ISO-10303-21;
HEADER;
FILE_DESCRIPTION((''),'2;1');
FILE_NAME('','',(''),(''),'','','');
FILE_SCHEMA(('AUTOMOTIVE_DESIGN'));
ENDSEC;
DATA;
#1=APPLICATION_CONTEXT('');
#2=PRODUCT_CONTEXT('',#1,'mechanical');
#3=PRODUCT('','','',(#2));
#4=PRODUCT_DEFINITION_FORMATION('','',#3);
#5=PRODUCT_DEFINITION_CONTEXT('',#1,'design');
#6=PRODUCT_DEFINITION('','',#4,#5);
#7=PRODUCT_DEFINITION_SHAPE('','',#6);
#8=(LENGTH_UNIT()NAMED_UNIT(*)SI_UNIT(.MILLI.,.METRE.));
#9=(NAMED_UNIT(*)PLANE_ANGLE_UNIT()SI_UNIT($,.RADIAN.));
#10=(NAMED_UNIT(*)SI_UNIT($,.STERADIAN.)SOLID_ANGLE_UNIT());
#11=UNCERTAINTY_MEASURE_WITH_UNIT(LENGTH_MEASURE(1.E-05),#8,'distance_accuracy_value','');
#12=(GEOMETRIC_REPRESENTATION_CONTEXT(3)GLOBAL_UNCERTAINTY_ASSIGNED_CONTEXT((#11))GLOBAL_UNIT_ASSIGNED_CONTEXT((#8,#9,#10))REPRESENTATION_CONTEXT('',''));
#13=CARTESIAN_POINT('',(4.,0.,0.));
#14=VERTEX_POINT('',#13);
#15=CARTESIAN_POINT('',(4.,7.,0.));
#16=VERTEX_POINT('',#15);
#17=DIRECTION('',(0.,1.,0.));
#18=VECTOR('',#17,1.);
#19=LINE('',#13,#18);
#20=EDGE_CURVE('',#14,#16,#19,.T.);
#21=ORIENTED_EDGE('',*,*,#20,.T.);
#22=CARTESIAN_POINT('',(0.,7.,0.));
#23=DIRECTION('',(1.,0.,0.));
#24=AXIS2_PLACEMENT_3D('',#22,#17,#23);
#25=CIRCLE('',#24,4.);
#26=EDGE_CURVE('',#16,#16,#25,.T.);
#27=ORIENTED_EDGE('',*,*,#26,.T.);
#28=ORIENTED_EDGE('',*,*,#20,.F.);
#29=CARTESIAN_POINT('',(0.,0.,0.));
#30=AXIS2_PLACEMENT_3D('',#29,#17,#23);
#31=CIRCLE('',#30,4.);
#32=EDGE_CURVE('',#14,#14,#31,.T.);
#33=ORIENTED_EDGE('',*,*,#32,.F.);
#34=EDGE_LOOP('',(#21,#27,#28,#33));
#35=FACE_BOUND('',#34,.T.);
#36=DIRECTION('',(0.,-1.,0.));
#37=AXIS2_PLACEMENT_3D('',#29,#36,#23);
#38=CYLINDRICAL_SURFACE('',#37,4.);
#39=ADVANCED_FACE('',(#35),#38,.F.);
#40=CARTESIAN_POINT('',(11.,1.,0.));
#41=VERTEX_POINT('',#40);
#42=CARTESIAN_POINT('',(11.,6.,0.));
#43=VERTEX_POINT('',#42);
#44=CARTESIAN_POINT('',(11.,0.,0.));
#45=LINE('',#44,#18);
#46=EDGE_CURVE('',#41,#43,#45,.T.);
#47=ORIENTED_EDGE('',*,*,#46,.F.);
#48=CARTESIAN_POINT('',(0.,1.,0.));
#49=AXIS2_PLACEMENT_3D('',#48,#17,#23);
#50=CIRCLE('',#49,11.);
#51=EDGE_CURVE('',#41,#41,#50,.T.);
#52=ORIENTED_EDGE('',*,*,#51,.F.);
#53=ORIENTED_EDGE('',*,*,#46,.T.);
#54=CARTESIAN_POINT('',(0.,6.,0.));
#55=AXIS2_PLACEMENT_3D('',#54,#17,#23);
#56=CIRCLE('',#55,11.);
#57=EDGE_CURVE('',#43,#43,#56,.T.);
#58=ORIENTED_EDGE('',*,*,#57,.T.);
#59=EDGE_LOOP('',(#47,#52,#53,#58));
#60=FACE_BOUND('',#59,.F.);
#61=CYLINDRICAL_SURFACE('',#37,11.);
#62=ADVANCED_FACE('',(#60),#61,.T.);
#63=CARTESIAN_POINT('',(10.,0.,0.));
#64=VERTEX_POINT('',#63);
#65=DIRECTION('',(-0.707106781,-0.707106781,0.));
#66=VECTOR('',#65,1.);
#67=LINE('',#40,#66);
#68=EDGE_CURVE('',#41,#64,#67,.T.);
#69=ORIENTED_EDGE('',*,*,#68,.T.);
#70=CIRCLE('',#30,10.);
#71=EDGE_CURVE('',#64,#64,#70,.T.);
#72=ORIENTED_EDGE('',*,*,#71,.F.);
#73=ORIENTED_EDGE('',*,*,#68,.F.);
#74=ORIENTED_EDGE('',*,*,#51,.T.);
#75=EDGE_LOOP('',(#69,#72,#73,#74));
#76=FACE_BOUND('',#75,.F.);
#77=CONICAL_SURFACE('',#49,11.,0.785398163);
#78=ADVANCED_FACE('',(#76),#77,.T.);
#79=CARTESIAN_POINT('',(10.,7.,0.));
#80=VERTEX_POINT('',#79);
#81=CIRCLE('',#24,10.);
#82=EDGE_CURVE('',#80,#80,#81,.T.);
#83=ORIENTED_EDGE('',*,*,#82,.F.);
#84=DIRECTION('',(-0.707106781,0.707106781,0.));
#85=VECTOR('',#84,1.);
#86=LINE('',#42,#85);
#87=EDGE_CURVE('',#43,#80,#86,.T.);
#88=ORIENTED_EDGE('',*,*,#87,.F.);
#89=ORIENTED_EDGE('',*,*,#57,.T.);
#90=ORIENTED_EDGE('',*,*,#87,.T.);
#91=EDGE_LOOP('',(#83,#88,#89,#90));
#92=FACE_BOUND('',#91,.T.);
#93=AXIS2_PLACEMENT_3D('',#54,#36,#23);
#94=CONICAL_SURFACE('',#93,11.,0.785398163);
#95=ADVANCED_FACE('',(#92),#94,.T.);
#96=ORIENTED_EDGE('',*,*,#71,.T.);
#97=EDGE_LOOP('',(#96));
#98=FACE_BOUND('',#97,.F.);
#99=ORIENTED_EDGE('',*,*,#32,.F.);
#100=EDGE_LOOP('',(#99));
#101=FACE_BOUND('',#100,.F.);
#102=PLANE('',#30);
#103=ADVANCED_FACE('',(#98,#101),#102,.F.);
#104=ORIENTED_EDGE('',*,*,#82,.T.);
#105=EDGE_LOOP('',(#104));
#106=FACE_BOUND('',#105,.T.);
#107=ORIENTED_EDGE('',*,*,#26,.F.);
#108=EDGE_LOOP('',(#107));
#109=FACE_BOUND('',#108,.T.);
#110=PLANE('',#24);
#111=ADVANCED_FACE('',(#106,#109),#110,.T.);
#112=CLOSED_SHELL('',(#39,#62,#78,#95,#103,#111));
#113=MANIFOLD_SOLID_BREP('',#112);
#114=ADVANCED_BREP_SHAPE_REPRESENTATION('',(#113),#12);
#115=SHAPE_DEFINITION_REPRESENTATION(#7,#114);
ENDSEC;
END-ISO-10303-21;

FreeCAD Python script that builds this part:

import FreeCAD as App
import Part
import Sketcher
Q = App.Units.Quantity


def edges_at(feature, points):
    """Names of the edges that pass closest to the given points."""
    edges = feature.Shape.Edges
    near = lambda p: min(range(len(edges)), key=lambda i: edges[i].distToShape(Part.Vertex(*p))[0])
    return sorted({f"Edge{near(p) + 1}" for p in points})

doc = App.newDocument("Part")
body = doc.addObject("PartDesign::Body", "Body")

# Sketch on XZ plane
sketch1 = doc.addObject("Sketcher::SketchObject", "Sketch")
body.addObject(sketch1)
sketch1.AttachmentSupport = (doc.XZ_Plane, [""])
sketch1.MapMode = "FlatFace"
sketch1.addGeometry([
    Part.Circle(App.Vector(0, 0, 0), App.Vector(0, 0, 1), 11),
    Part.Circle(App.Vector(0, 0, 0), App.Vector(0, 0, 1), 4),
], False)
sketch1.addConstraint([
    Sketcher.Constraint("Coincident", 0, 3, -1, 1),
    Sketcher.Constraint("Coincident", 1, 3, -1, 1),
    Sketcher.Constraint("Diameter", 0, Q("22 mm")),
    Sketcher.Constraint("Diameter", 1, Q("8 mm")),
])
pad1 = doc.addObject("PartDesign::Pad", "Pad")
body.addObject(pad1)
pad1.Profile = sketch1
pad1.Length = 7
pad1.Reversed = True
doc.recompute()

chamfer = doc.addObject("PartDesign::Chamfer", "Chamfer")
body.addObject(chamfer)
chamfer.Base = (pad1, edges_at(pad1, [(-10.256, 7, 3.978), (-10.256, 0, 3.978)]))
chamfer.Size = 1

doc.recompute()
